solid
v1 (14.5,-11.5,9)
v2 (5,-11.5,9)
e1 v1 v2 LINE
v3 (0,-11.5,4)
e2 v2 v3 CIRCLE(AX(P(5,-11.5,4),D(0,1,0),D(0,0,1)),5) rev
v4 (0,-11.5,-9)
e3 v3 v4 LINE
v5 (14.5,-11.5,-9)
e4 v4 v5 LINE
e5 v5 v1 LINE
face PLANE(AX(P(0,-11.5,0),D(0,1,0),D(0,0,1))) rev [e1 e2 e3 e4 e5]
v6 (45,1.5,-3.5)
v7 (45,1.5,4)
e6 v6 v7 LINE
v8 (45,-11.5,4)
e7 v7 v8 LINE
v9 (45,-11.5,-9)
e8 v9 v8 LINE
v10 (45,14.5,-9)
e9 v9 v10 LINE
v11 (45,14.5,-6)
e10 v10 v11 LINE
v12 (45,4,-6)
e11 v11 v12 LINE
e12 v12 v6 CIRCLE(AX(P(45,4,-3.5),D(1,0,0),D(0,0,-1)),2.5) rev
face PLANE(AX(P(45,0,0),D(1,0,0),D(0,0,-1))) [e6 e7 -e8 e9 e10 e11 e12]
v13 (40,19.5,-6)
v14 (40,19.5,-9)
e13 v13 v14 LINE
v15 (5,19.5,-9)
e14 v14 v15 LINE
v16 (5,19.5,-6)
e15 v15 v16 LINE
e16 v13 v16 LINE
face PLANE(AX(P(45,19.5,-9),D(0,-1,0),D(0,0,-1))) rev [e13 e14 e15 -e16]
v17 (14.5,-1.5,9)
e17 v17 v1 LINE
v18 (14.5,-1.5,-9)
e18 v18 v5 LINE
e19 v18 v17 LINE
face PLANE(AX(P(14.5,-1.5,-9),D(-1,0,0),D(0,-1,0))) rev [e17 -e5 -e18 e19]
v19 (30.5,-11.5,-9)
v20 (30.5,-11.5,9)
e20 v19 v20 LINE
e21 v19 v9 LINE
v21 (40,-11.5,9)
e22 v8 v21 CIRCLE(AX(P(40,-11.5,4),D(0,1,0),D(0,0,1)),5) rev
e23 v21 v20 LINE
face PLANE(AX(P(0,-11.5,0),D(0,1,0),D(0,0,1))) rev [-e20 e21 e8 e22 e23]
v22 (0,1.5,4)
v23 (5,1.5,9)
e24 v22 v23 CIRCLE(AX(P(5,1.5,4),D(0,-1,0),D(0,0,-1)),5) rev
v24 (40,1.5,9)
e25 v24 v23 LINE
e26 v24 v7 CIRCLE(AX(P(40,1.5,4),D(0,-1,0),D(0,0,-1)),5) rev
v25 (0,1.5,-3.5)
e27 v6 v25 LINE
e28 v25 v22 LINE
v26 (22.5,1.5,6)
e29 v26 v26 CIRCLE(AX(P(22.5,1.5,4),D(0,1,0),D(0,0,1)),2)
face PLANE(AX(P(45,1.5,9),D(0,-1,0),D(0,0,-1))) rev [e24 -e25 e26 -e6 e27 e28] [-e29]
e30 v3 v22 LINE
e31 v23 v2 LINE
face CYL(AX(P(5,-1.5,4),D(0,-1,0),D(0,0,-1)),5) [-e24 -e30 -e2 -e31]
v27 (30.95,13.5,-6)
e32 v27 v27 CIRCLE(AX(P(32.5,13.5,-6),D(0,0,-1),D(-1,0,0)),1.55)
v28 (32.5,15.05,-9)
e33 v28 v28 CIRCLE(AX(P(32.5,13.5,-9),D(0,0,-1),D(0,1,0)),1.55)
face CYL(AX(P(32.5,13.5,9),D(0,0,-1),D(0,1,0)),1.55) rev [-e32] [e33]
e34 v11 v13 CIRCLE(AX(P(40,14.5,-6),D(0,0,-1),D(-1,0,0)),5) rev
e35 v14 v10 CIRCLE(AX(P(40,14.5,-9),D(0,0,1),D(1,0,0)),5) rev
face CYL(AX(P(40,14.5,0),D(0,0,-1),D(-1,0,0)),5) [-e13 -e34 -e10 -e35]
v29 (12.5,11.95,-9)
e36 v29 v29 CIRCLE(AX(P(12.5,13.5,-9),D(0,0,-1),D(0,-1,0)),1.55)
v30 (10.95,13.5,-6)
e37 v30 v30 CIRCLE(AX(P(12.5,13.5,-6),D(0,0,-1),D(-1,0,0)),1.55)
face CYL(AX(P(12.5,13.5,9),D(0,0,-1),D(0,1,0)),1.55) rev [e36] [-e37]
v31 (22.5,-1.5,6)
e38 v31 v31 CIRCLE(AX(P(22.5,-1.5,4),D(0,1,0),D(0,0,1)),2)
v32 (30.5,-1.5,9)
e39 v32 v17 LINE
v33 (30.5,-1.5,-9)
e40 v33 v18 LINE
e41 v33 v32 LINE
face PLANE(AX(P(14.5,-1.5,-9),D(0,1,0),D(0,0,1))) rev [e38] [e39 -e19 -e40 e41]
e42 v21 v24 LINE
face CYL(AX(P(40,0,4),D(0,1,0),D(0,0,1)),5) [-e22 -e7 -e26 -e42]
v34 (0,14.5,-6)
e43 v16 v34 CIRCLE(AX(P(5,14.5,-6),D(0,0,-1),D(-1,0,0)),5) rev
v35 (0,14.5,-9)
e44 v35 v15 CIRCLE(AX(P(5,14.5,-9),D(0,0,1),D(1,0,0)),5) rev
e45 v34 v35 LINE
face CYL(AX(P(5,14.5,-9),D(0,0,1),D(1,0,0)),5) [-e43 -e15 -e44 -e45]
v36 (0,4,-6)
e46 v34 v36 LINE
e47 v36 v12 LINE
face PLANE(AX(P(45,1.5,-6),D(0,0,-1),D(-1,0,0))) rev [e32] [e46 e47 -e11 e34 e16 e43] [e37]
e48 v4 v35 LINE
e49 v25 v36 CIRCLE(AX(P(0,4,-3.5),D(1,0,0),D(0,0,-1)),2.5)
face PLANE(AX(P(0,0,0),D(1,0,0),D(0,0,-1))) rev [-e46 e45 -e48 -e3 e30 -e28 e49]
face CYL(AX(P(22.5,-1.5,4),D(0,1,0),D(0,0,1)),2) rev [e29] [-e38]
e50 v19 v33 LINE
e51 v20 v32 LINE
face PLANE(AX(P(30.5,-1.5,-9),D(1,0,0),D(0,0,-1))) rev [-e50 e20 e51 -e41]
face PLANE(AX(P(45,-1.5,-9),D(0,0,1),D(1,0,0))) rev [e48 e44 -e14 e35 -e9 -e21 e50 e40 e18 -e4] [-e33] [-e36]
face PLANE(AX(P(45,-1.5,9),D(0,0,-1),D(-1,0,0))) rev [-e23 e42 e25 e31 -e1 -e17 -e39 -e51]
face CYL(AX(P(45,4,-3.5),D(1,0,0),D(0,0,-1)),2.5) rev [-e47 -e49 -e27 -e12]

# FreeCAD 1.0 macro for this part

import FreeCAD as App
import Part
import Sketcher
from FreeCAD import Vector


def edges_at(feature, points):
    """Names of the edges that pass closest to the given points."""
    edges = feature.Shape.Edges
    near = lambda p: min(range(len(edges)), key=lambda i: edges[i].distToShape(Part.Vertex(*p))[0])
    return sorted({f"Edge{near(p) + 1}" for p in points})

doc = App.newDocument("Part")
body = doc.addObject("PartDesign::Body", "Body")

# Sketch on YZ plane
sketch1 = body.newObject("Sketcher::SketchObject", "Sketch")
sketch1.AttachmentSupport = (doc.getObject("YZ_Plane"), [""])
sketch1.MapMode = "FlatFace"
sketch1.addGeometry([
    Part.LineSegment(Vector(-1.5, 9, 0), Vector(-1.5, -9, 0)),  # 0
    Part.LineSegment(Vector(-1.5, -9, 0), Vector(19.5, -9, 0)),  # 1
    Part.LineSegment(Vector(19.5, -9, 0), Vector(19.5, -6, 0)),  # 2
    Part.LineSegment(Vector(19.5, -6, 0), Vector(1.5, -6, 0)),  # 3
    Part.LineSegment(Vector(1.5, -6, 0), Vector(1.5, 9, 0)),  # 4
    Part.LineSegment(Vector(1.5, 9, 0), Vector(-1.5, 9, 0)),  # 5
], False)
sketch1.addConstraint([
    Sketcher.Constraint("Coincident", 0, 2, 1, 1),
    Sketcher.Constraint("Coincident", 1, 2, 2, 1),
    Sketcher.Constraint("Coincident", 2, 2, 3, 1),
    Sketcher.Constraint("Coincident", 3, 2, 4, 1),
    Sketcher.Constraint("Coincident", 4, 2, 5, 1),
    Sketcher.Constraint("Coincident", 5, 2, 0, 1),
    Sketcher.Constraint("Vertical", 0),
    Sketcher.Constraint("Horizontal", 1),
    Sketcher.Constraint("Vertical", 2),
    Sketcher.Constraint("Horizontal", 3),
    Sketcher.Constraint("Vertical", 4),
    Sketcher.Constraint("Horizontal", 5),
    Sketcher.Constraint("Symmetric", 0, 2, 4, 2, -1, 1),
    Sketcher.Constraint("Equal", 3, 0),
    Sketcher.Constraint("Equal", 5, 2),
    Sketcher.Constraint("DistanceX", 1, 1, 1, 2, 21.0),
    Sketcher.Constraint("DistanceX", 3, 2, 3, 1, 18.0),
])
pad1 = body.newObject("PartDesign::Pad", "Pad")
pad1.Profile = sketch1
pad1.Length = 45
doc.recompute()

fillet = body.newObject("PartDesign::Fillet", "Fillet")
fillet.Base = (pad1, edges_at(pad1, [(22.5, 1.5, -6)]))
fillet.Radius = 2.5

# Sketch on XZ plane
sketch2 = body.newObject("Sketcher::SketchObject", "Sketch001")
sketch2.AttachmentSupport = (doc.getObject("XZ_Plane"), [""])
sketch2.MapMode = "FlatFace"
sketch2.AttachmentOffset = App.Placement(Vector(0, 0, -1.5), App.Rotation())
sketch2.addGeometry(Part.Circle(Vector(22.5, 4, 0), Vector(0, 0, 1), 2), False)
sketch2.addConstraint([
    Sketcher.Constraint("Diameter", 0, 4.0),
    Sketcher.Constraint("DistanceY", -1, 1, 0, 3, 4.0),
    Sketcher.Constraint("DistanceX", -1, 1, 0, 3, 22.5),
])
pocket1 = body.newObject("PartDesign::Pocket", "Pocket")
pocket1.Profile = sketch2
pocket1.Type = "ThroughAll"
pocket1.Reversed = True

# Sketch on XY plane
sketch3 = body.newObject("Sketcher::SketchObject", "Sketch002")
sketch3.AttachmentSupport = (doc.getObject("XY_Plane"), [""])
sketch3.MapMode = "FlatFace"
sketch3.AttachmentOffset = App.Placement(Vector(0, 0, -9), App.Rotation())
sketch3.addGeometry([
    Part.Circle(Vector(32.5, 13.5, 0), Vector(0, 0, 1), 1.6),
    Part.Circle(Vector(12.5, 13.5, 0), Vector(0, 0, 1), 1.6),
], False)
sketch3.addConstraint([
    Sketcher.Constraint("Equal", 0, 1),
    Sketcher.Constraint("Horizontal", 0, 3, 1, 3),
    Sketcher.Constraint("Diameter", 0, 3.1),
    Sketcher.Constraint("DistanceX", 1, 3, 0, 3, 20.0),
    Sketcher.Constraint("DistanceX", -1, 1, 0, 3, 32.5),
    Sketcher.Constraint("DistanceY", -1, 1, 0, 3, 13.5),
])
pocket2 = body.newObject("PartDesign::Pocket", "Pocket001")
pocket2.Profile = sketch3
pocket2.Type = "ThroughAll"
pocket2.Reversed = True

# Sketch on XZ plane
sketch4 = body.newObject("Sketcher::SketchObject", "Sketch003")
sketch4.AttachmentSupport = (doc.getObject("XZ_Plane"), [""])
sketch4.MapMode = "FlatFace"
sketch4.AttachmentOffset = App.Placement(Vector(0, 0, 1.5), App.Rotation())
sketch4.addGeometry([
    Part.LineSegment(Vector(0, 9, 0), Vector(0, -9, 0)),
    Part.LineSegment(Vector(0, -9, 0), Vector(45, -9, 0)),
    Part.LineSegment(Vector(45, -9, 0), Vector(45, 9, 0)),
    Part.LineSegment(Vector(45, 9, 0), Vector(0, 9, 0)),
], False)
sketch4.addConstraint([
    Sketcher.Constraint("Coincident", 0, 2, 1, 1),
    Sketcher.Constraint("Coincident", 1, 2, 2, 1),
    Sketcher.Constraint("Coincident", 2, 2, 3, 1),
    Sketcher.Constraint("Coincident", 3, 2, 0, 1),
    Sketcher.Constraint("Vertical", 0),
    Sketcher.Constraint("Horizontal", 1),
    Sketcher.Constraint("Vertical", 2),
    Sketcher.Constraint("Horizontal", 3),
    Sketcher.Constraint("Symmetric", 0, 2, 3, 2, -1, 1),
    Sketcher.Constraint("DistanceX", 1, 1, 1, 2, 45.0),
    Sketcher.Constraint("DistanceY", 0, 2, 0, 1, 18.0),
])
pad2 = body.newObject("PartDesign::Pad", "Pad001")
pad2.Profile = sketch4
pad2.Length = 10
doc.recompute()

fillet2 = body.newObject("PartDesign::Fillet", "Fillet001")
fillet2.Base = (pad2, edges_at(pad2, [(45, -5, 9), (0, -5, 9)]))
fillet2.Radius = 5

# Sketch on XY plane
sketch5 = body.newObject("Sketcher::SketchObject", "Sketch004")
sketch5.AttachmentSupport = (doc.getObject("XY_Plane"), [""])
sketch5.MapMode = "FlatFace"
sketch5.AttachmentOffset = App.Placement(Vector(0, 0, 9), App.Rotation())
sketch5.addGeometry([
    Part.LineSegment(Vector(14, -2, 0), Vector(14, -12, 0)),
    Part.LineSegment(Vector(14, -12, 0), Vector(30, -12, 0)),
    Part.LineSegment(Vector(30, -12, 0), Vector(30, -2, 0)),
    Part.LineSegment(Vector(30, -2, 0), Vector(14, -2, 0)),
], False)
sketch5.addConstraint([
    Sketcher.Constraint("Coincident", 0, 2, 1, 1),
    Sketcher.Constraint("Coincident", 1, 2, 2, 1),
    Sketcher.Constraint("Coincident", 2, 2, 3, 1),
    Sketcher.Constraint("Coincident", 3, 2, 0, 1),
    Sketcher.Constraint("Vertical", 0),
    Sketcher.Constraint("Horizontal", 1),
    Sketcher.Constraint("Vertical", 2),
    Sketcher.Constraint("Horizontal", 3),
    Sketcher.Constraint("DistanceX", 1, 1, 1, 2, 16.0),
    Sketcher.Constraint("DistanceY", 0, 2, 0, 1, 10.0),
    Sketcher.Constraint("DistanceX", -1, 1, 0, 2, 14.5),
    Sketcher.Constraint("DistanceY", 0, 2, -1, 1, 11.5),
])
pocket3 = body.newObject("PartDesign::Pocket", "Pocket002")
pocket3.Profile = sketch5
pocket3.Type = "ThroughAll"
doc.recompute()

fillet3 = body.newObject("PartDesign::Fillet", "Fillet002")
fillet3.Base = (pocket3, edges_at(pocket3, [(45, 19.5, -7.5), (0, 19.5, -7.5)]))
fillet3.Radius = 5

doc.recompute()
